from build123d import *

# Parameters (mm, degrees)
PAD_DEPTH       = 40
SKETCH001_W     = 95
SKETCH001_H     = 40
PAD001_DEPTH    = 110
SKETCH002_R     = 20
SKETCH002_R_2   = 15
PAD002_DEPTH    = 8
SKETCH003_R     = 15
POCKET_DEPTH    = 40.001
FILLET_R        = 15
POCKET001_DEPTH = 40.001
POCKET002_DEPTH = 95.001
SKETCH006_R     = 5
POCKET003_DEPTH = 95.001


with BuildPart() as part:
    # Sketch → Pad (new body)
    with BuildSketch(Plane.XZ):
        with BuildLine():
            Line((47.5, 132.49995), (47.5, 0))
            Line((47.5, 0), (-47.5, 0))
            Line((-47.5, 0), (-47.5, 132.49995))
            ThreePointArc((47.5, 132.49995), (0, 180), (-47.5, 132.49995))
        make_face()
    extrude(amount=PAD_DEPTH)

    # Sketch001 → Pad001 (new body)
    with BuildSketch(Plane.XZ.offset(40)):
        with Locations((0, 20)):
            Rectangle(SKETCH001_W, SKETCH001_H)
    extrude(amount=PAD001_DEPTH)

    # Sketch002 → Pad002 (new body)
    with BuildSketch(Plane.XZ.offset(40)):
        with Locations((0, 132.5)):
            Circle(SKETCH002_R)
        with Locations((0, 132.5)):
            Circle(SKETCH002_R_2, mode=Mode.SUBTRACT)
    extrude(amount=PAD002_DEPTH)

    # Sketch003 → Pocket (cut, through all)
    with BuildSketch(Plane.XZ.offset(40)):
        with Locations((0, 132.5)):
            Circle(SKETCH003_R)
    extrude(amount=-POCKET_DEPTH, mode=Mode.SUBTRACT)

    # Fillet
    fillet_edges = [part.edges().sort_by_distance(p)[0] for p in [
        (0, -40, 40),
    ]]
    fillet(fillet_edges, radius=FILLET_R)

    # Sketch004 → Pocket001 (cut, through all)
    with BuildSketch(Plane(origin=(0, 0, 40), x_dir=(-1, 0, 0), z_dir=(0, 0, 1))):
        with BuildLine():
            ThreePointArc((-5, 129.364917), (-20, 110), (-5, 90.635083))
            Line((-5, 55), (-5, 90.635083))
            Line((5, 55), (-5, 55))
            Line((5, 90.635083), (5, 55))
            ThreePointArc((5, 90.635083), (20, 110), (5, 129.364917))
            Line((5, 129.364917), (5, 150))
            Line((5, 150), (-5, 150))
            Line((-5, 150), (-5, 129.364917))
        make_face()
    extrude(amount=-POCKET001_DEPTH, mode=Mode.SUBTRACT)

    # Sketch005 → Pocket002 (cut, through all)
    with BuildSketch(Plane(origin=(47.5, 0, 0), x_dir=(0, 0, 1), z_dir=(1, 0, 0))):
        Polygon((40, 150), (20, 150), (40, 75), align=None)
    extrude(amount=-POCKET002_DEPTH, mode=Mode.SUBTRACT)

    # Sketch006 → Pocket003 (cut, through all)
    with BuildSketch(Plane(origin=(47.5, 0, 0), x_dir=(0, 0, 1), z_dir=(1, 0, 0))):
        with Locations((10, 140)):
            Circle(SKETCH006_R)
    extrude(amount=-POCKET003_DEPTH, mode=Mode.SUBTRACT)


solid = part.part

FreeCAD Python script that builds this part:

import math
import FreeCAD as App
import Part
import Sketcher


def edges_at(feature, points):
    """Names of the edges that pass closest to the given points."""
    edges = feature.Shape.Edges
    near = lambda p: min(range(len(edges)), key=lambda i: edges[i].distToShape(Part.Vertex(*p))[0])
    return sorted({f"Edge{near(p) + 1}" for p in points})

doc = App.newDocument("Part")
body = doc.addObject("PartDesign::Body", "Body")

sketch1 = doc.addObject("Sketcher::SketchObject", "Sketch")
body.addObject(sketch1)
sketch1.AttachmentSupport = (doc.XZ_Plane, [""])
sketch1.MapMode = "FlatFace"
sketch1.addGeometry([
    Part.LineSegment(App.Vector(47.5, 0, 0), App.Vector(47.5, 132.49995, 0)),
    Part.ArcOfCircle(Part.Circle(App.Vector(0, 132.5, 0), App.Vector(0, 0, 1), 47.5), math.radians(-0.00006), math.radians(180.00006)),
    Part.LineSegment(App.Vector(-47.5, 132.49995, 0), App.Vector(-47.5, 0, 0)),
    Part.LineSegment(App.Vector(-47.5, 0, 0), App.Vector(47.5, 0, 0)),
], False)
sketch1.addConstraint([
    Sketcher.Constraint("Coincident", 0, 2, 1, 1),
    Sketcher.Constraint("Coincident", 1, 2, 2, 1),
    Sketcher.Constraint("Coincident", 2, 2, 3, 1),
    Sketcher.Constraint("Coincident", 3, 2, 0, 1),
    Sketcher.Constraint("Vertical", 0),
    Sketcher.Constraint("Vertical", 2),
    Sketcher.Constraint("Horizontal", 3),
    Sketcher.Constraint("PointOnObject", 1, 3, -2),
    Sketcher.Constraint("PointOnObject", 2, 2, -1),
    Sketcher.Constraint("Radius", 1, 47.5),
    Sketcher.Constraint("DistanceY", -1, 1, 1, 3, 132.5),
    Sketcher.Constraint("DistanceY", 0, 1, 0, 2, 132.49995),
    Sketcher.Constraint("DistanceY", 2, 2, 2, 1, 132.49995),
])
pad1 = doc.addObject("PartDesign::Pad", "Pad")
body.addObject(pad1)
pad1.Profile = sketch1
pad1.Length = 40

sketch2 = doc.addObject("Sketcher::SketchObject", "Sketch001")
body.addObject(sketch2)
sketch2.AttachmentSupport = (doc.XZ_Plane, [""])
sketch2.MapMode = "FlatFace"
sketch2.AttachmentOffset = App.Placement(App.Vector(0, 0, 40), App.Rotation())
sketch2.addGeometry([
    Part.LineSegment(App.Vector(-48, 40, 0), App.Vector(-48, 0, 0)),
    Part.LineSegment(App.Vector(-48, 0, 0), App.Vector(48, 0, 0)),
    Part.LineSegment(App.Vector(48, 0, 0), App.Vector(48, 40, 0)),
    Part.LineSegment(App.Vector(48, 40, 0), App.Vector(-48, 40, 0)),
], False)
sketch2.addConstraint([
    Sketcher.Constraint("Coincident", 0, 2, 1, 1),
    Sketcher.Constraint("Coincident", 1, 2, 2, 1),
    Sketcher.Constraint("Coincident", 2, 2, 3, 1),
    Sketcher.Constraint("Coincident", 3, 2, 0, 1),
    Sketcher.Constraint("Vertical", 0),
    Sketcher.Constraint("Horizontal", 1),
    Sketcher.Constraint("Vertical", 2),
    Sketcher.Constraint("Horizontal", 3),
    Sketcher.Constraint("Symmetric", 0, 2, 1, 2, -1, 1),
    Sketcher.Constraint("DistanceX", 1, 1, 1, 2, 95.0),
    Sketcher.Constraint("DistanceY", 0, 2, 0, 1, 40.0),
])
pad2 = doc.addObject("PartDesign::Pad", "Pad001")
body.addObject(pad2)
pad2.Profile = sketch2
pad2.Length = 110

sketch3 = doc.addObject("Sketcher::SketchObject", "Sketch002")
body.addObject(sketch3)
sketch3.AttachmentSupport = (doc.XZ_Plane, [""])
sketch3.MapMode = "FlatFace"
sketch3.AttachmentOffset = App.Placement(App.Vector(0, 0, 40), App.Rotation())
sketch3.addGeometry([
    Part.Circle(App.Vector(0, 132, 0), App.Vector(0, 0, 1), 20),
    Part.Circle(App.Vector(0, 132, 0), App.Vector(0, 0, 1), 15),
], False)
sketch3.addConstraint([
    Sketcher.Constraint("Coincident", 1, 3, 0, 3),
    Sketcher.Constraint("PointOnObject", 0, 3, -2),
    Sketcher.Constraint("Diameter", 0, 40.0),
    Sketcher.Constraint("Diameter", 1, 30.0),
    Sketcher.Constraint("DistanceY", -1, 1, 0, 3, 132.5),
])
pad3 = doc.addObject("PartDesign::Pad", "Pad002")
body.addObject(pad3)
pad3.Profile = sketch3
pad3.Length = 8

sketch4 = doc.addObject("Sketcher::SketchObject", "Sketch003")
body.addObject(sketch4)
sketch4.AttachmentSupport = (doc.XZ_Plane, [""])
sketch4.MapMode = "FlatFace"
sketch4.AttachmentOffset = App.Placement(App.Vector(0, 0, 40), App.Rotation())
sketch4.addGeometry(Part.Circle(App.Vector(0, 132, 0), App.Vector(0, 0, 1), 15), False)
sketch4.addConstraint([
    Sketcher.Constraint("PointOnObject", 0, 3, -2),
    Sketcher.Constraint("Diameter", 0, 30.0),
    Sketcher.Constraint("DistanceY", -1, 1, 0, 3, 132.5),
])
pocket1 = doc.addObject("PartDesign::Pocket", "Pocket")
body.addObject(pocket1)
pocket1.Profile = sketch4
pocket1.Type = "ThroughAll"
doc.recompute()

fillet = doc.addObject("PartDesign::Fillet", "Fillet")
body.addObject(fillet)
fillet.Base = (pocket1, edges_at(pocket1, [(0, -40, 40)]))
fillet.Radius = 15

sketch5 = doc.addObject("Sketcher::SketchObject", "Sketch004")
body.addObject(sketch5)
sketch5.AttachmentSupport = (doc.XY_Plane, [""])
sketch5.MapMode = "FlatFace"
sketch5.AttachmentOffset = App.Placement(App.Vector(0, 0, 40), App.Rotation())
sketch5.addGeometry([
    Part.ArcOfCircle(Part.Circle(App.Vector(0, -110, 0), App.Vector(0, 0, 1), 20), math.radians(-76), math.radians(76)),
    Part.LineSegment(App.Vector(5, -91, 0), App.Vector(5, -55, 0)),
    Part.LineSegment(App.Vector(5, -55, 0), App.Vector(-5, -55, 0)),
    Part.LineSegment(App.Vector(-5, -55, 0), App.Vector(-5, -91, 0)),
    Part.ArcOfCircle(Part.Circle(App.Vector(0, -110, 0), App.Vector(0, 0, 1), 20), math.radians(104), math.radians(256)),
    Part.LineSegment(App.Vector(-5, -129, 0), App.Vector(-5, -150, 0)),
    Part.LineSegment(App.Vector(-5, -150, 0), App.Vector(5, -150, 0)),
    Part.LineSegment(App.Vector(5, -150, 0), App.Vector(5, -129, 0)),
], False)
sketch5.addConstraint([
    Sketcher.Constraint("Coincident", 0, 2, 1, 1),
    Sketcher.Constraint("Coincident", 1, 2, 2, 1),
    Sketcher.Constraint("Coincident", 2, 2, 3, 1),
    Sketcher.Constraint("Coincident", 3, 2, 4, 1),
    Sketcher.Constraint("Coincident", 4, 2, 5, 1),
    Sketcher.Constraint("Coincident", 5, 2, 6, 1),
    Sketcher.Constraint("Coincident", 6, 2, 7, 1),
    Sketcher.Constraint("Coincident", 7, 2, 0, 1),
    Sketcher.Constraint("Vertical", 1),
    Sketcher.Constraint("Horizontal", 2),
    Sketcher.Constraint("Vertical", 3),
    Sketcher.Constraint("Vertical", 5),
    Sketcher.Constraint("Horizontal", 6),
    Sketcher.Constraint("Vertical", 7),
    Sketcher.Constraint("Coincident", 4, 3, 0, 3),
    Sketcher.Constraint("Equal", 0, 4),
    Sketcher.Constraint("Symmetric", 0, 2, 3, 2, -2),
    Sketcher.Constraint("Horizontal", 4, 2, 7, 2),
    Sketcher.Constraint("Vertical", 3, 2, 4, 2),
    Sketcher.Constraint("Radius", 0, 20.0),
    Sketcher.Constraint("DistanceX", 2, 2, 2, 1, 10.0),
    Sketcher.Constraint("DistanceY", 0, 3, -1, 1, 110.0),
    Sketcher.Constraint("DistanceY", 1, 2, -1, 1, 55.0),
    Sketcher.Constraint("DistanceY", 5, 2, -1, 1, 150.0),
])
pocket2 = doc.addObject("PartDesign::Pocket", "Pocket001")
body.addObject(pocket2)
pocket2.Profile = sketch5
pocket2.Type = "ThroughAll"

sketch6 = doc.addObject("Sketcher::SketchObject", "Sketch005")
body.addObject(sketch6)
sketch6.AttachmentSupport = (doc.YZ_Plane, [""])
sketch6.MapMode = "FlatFace"
sketch6.AttachmentOffset = App.Placement(App.Vector(0, 0, 47.5), App.Rotation())
sketch6.addGeometry([
    Part.LineSegment(App.Vector(-150, 40, 0), App.Vector(-150, 20, 0)),
    Part.LineSegment(App.Vector(-150, 20, 0), App.Vector(-75, 40, 0)),
    Part.LineSegment(App.Vector(-75, 40, 0), App.Vector(-150, 40, 0)),
], False)
sketch6.addConstraint([
    Sketcher.Constraint("Coincident", 0, 2, 1, 1),
    Sketcher.Constraint("Coincident", 1, 2, 2, 1),
    Sketcher.Constraint("Coincident", 2, 2, 0, 1),
    Sketcher.Constraint("Vertical", 0),
    Sketcher.Constraint("Horizontal", 2),
    Sketcher.Constraint("DistanceX", 2, 2, 2, 1, 75.0),
    Sketcher.Constraint("DistanceY", 0, 2, 0, 1, 20.0),
    Sketcher.Constraint("DistanceX", 0, 2, -1, 1, 150.0),
    Sketcher.Constraint("DistanceY", -1, 1, 0, 2, 20.0),
])
pocket3 = doc.addObject("PartDesign::Pocket", "Pocket002")
body.addObject(pocket3)
pocket3.Profile = sketch6
pocket3.Type = "ThroughAll"

sketch7 = doc.addObject("Sketcher::SketchObject", "Sketch006")
body.addObject(sketch7)
sketch7.AttachmentSupport = (doc.YZ_Plane, [""])
sketch7.MapMode = "FlatFace"
sketch7.AttachmentOffset = App.Placement(App.Vector(0, 0, 47.5), App.Rotation())
sketch7.addGeometry(Part.Circle(App.Vector(-140, 10, 0), App.Vector(0, 0, 1), 5), False)
sketch7.addConstraint([
    Sketcher.Constraint("Diameter", 0, 10.0),
    Sketcher.Constraint("DistanceX", 0, 3, -1, 1, 140.0),
    Sketcher.Constraint("DistanceY", -1, 1, 0, 3, 10.0),
])
pocket4 = doc.addObject("PartDesign::Pocket", "Pocket003")
body.addObject(pocket4)
pocket4.Profile = sketch7
pocket4.Type = "ThroughAll"

doc.recompute()
